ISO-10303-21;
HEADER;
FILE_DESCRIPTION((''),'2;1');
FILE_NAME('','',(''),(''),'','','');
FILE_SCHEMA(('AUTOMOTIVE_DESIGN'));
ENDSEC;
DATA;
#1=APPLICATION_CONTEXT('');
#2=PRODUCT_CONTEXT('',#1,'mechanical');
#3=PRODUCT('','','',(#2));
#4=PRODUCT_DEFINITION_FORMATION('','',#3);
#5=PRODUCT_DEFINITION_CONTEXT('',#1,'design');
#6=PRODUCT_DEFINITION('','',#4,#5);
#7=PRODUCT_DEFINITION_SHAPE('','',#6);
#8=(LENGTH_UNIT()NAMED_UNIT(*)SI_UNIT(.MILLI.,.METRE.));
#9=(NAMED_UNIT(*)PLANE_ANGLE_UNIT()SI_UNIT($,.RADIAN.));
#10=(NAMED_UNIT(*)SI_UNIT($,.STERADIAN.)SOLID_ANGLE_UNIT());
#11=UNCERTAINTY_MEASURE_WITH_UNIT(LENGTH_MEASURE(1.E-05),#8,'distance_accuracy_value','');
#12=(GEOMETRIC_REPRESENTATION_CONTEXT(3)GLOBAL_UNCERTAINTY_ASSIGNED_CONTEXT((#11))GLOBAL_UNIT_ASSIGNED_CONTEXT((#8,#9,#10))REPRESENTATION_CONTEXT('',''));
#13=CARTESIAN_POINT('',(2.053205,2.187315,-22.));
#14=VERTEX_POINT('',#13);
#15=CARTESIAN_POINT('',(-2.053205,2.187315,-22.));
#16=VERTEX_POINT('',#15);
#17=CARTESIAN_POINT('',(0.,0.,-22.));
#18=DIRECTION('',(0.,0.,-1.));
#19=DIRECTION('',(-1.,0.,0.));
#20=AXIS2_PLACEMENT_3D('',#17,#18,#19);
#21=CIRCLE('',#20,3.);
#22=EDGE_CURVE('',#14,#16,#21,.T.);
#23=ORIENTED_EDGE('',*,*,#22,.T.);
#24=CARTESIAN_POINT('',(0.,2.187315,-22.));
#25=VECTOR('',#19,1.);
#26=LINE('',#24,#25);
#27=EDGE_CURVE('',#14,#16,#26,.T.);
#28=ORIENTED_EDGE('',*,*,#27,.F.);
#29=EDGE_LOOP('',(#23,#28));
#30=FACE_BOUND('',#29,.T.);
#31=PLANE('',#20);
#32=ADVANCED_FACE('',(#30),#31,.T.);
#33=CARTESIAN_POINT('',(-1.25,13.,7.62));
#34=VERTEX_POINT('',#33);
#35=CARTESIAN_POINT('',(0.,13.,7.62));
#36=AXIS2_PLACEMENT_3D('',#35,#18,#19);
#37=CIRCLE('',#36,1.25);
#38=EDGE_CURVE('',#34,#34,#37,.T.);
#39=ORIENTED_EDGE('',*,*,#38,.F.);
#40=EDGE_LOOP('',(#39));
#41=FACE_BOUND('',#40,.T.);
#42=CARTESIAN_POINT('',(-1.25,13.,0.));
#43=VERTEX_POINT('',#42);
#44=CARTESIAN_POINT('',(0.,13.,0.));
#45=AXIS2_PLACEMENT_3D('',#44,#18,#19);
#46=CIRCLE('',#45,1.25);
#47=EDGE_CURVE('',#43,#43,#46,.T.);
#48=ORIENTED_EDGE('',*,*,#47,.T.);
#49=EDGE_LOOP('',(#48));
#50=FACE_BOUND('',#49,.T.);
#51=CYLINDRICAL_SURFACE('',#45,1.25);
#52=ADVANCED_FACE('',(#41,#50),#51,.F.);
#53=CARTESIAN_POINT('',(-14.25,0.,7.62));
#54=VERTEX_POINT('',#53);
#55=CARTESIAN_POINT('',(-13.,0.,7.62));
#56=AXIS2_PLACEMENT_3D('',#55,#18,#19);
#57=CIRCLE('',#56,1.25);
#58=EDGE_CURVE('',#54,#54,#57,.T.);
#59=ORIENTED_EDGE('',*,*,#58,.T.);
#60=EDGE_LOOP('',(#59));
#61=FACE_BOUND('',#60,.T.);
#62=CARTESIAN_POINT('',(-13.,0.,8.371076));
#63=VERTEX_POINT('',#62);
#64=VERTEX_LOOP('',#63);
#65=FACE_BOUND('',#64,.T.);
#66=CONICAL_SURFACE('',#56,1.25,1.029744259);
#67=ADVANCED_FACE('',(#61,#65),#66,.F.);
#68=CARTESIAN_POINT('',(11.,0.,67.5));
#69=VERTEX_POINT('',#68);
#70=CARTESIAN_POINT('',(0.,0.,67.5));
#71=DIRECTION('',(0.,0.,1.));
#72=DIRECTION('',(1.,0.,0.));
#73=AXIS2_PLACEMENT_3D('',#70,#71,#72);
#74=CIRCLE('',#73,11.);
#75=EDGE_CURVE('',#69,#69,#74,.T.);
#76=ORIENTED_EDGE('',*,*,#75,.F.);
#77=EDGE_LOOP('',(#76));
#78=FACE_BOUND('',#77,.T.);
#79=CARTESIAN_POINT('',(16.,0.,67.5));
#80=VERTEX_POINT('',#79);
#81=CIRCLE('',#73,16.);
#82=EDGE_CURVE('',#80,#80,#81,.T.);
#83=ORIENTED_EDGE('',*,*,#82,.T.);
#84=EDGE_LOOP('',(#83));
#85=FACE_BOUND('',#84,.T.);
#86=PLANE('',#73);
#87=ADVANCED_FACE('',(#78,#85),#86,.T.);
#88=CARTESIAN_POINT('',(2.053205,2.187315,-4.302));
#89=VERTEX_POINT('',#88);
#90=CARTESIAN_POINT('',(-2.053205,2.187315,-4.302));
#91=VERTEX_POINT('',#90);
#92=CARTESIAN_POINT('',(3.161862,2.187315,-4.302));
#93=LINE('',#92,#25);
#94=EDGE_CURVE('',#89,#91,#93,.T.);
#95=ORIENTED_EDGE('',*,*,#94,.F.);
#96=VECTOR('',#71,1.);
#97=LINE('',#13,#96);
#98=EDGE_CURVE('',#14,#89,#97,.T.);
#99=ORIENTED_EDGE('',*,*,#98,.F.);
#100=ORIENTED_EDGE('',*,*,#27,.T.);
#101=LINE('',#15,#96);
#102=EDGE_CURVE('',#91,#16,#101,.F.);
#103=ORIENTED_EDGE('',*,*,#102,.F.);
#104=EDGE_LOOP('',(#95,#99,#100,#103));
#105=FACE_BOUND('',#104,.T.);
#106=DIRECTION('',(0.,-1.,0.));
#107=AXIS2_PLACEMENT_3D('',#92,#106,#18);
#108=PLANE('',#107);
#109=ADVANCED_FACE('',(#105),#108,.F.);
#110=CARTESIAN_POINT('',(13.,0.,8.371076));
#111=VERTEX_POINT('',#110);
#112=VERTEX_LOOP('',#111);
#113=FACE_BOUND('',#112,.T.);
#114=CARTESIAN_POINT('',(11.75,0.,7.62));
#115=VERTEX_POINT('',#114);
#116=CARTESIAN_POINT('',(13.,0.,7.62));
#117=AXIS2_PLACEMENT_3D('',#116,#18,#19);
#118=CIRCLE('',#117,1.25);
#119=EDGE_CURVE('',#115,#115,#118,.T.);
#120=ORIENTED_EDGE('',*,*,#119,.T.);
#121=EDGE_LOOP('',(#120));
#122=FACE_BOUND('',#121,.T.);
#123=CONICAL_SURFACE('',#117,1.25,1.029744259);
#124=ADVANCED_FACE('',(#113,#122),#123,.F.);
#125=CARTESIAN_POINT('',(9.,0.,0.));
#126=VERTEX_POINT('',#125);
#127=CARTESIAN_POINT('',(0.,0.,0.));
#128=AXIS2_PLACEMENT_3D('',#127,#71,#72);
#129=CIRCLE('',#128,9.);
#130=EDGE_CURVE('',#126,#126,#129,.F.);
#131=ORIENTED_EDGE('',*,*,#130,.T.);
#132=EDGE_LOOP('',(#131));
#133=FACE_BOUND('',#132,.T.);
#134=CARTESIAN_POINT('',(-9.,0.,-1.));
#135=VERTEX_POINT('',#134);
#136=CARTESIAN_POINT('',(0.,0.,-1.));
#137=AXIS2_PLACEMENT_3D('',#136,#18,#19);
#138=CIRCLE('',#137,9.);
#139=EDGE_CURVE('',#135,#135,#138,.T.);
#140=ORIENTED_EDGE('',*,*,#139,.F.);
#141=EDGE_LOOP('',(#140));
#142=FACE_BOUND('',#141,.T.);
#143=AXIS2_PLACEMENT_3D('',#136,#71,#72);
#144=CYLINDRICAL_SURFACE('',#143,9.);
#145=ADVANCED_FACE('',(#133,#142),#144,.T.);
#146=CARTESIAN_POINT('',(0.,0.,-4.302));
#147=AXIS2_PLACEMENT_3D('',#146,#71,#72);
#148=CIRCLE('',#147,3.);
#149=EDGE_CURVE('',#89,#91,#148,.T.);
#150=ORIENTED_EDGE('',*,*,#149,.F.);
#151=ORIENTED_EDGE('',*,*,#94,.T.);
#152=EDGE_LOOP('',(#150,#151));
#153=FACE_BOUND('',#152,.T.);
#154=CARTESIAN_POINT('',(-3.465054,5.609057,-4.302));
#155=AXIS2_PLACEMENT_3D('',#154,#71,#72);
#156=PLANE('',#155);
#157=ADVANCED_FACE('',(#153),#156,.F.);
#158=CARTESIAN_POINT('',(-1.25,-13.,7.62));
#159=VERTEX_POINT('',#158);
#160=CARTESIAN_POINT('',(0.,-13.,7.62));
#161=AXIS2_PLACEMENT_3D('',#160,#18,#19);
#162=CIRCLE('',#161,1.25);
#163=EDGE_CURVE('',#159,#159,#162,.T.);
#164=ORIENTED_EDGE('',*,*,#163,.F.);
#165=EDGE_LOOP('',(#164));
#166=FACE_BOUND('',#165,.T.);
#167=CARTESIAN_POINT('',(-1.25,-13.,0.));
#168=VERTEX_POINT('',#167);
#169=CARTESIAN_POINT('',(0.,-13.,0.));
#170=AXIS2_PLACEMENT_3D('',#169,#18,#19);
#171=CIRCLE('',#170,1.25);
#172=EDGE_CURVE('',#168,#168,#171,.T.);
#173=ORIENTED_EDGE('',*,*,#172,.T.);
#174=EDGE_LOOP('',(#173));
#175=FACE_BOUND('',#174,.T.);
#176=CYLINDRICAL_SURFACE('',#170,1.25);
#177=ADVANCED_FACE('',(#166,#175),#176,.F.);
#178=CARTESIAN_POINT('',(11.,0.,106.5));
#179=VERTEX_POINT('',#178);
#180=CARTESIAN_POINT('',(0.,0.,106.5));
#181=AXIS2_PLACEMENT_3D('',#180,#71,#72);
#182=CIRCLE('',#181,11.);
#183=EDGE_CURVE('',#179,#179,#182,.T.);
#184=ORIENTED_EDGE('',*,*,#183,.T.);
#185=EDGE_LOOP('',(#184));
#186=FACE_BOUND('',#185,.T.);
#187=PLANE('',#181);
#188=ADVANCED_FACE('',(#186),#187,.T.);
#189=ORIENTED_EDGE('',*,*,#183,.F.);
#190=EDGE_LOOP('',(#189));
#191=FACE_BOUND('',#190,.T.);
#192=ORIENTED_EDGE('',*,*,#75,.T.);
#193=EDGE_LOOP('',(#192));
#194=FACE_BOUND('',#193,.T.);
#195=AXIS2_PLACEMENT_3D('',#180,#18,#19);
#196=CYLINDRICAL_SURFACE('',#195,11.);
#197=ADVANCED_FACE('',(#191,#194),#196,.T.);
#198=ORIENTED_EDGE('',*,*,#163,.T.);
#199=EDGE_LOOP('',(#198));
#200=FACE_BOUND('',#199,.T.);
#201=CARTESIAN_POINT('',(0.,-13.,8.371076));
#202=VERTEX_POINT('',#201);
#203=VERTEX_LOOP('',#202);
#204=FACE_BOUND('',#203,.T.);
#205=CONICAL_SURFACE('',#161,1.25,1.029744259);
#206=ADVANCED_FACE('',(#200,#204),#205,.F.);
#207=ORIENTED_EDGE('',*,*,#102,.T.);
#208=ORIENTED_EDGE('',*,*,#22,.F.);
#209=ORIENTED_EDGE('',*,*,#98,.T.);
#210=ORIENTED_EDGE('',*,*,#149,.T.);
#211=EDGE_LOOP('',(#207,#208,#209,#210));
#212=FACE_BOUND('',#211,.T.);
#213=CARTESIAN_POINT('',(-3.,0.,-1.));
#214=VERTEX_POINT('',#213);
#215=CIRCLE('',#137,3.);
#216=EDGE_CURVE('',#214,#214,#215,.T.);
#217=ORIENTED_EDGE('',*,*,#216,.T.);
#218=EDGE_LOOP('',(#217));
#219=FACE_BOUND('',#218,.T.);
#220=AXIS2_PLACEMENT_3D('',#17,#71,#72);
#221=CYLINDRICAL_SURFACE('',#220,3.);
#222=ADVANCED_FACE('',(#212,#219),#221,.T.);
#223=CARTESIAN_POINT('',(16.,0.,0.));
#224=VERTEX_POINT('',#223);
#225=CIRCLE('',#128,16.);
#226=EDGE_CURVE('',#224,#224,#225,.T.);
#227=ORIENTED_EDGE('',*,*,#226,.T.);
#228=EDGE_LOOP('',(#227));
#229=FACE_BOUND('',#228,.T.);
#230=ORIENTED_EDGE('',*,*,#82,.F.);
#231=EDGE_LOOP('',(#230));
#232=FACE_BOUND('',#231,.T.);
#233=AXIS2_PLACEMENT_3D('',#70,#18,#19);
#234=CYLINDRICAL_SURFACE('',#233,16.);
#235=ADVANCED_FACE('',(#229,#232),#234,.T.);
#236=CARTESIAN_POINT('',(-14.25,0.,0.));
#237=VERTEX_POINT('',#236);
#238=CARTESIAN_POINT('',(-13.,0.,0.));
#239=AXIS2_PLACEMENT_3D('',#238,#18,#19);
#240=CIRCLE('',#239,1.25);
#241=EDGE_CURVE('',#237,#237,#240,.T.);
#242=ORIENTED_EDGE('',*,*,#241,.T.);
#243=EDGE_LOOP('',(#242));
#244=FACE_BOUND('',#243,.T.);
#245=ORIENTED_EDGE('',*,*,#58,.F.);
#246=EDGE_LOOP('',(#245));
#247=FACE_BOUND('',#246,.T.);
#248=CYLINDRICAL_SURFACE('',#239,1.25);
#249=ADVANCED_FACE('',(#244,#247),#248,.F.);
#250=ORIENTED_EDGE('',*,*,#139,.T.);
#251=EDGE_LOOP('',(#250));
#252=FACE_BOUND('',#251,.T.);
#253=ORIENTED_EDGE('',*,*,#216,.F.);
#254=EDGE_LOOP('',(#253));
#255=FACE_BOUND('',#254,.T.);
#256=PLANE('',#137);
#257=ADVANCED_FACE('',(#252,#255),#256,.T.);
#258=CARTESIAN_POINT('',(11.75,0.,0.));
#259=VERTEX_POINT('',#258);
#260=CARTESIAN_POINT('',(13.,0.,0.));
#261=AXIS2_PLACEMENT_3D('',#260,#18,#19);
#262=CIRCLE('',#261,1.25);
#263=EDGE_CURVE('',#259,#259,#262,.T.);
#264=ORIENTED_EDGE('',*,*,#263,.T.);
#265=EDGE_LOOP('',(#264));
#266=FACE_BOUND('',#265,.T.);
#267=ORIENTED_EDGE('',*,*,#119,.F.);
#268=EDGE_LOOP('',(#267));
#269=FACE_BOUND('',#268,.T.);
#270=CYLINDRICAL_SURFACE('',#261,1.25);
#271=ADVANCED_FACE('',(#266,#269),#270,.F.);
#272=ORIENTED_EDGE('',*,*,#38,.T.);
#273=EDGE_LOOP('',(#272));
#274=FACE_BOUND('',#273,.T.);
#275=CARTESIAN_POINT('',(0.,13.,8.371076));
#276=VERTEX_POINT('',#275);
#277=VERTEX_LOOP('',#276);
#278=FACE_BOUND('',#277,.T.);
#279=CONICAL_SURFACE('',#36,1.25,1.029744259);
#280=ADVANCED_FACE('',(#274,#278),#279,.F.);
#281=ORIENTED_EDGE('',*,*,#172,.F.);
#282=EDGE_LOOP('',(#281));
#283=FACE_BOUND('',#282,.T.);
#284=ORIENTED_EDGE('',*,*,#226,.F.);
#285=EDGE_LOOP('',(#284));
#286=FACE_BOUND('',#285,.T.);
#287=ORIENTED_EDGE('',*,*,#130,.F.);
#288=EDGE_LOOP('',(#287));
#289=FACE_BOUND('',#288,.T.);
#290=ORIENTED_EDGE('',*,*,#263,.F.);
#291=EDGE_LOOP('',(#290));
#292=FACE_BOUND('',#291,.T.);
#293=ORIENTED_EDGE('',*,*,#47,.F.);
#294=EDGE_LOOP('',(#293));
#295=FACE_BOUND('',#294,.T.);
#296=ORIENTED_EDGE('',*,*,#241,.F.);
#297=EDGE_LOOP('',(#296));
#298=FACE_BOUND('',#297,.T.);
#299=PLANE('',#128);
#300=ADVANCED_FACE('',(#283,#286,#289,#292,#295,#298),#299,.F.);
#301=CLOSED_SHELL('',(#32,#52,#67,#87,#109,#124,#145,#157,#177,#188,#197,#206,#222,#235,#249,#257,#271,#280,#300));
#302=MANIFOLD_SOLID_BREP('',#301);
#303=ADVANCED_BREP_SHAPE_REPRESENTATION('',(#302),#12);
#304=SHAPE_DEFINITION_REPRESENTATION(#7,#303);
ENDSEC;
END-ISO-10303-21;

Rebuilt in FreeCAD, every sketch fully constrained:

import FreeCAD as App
import Part
import Sketcher
from FreeCAD import Vector
Q = App.Units.Quantity

doc = App.newDocument("Part")
params = doc.addObject("Spreadsheet::Sheet", "Params")
for row, (alias, value) in enumerate([
    ("sketch1_diameter", "32 mm"),
    ("pad1_length", "67.5 mm"),
    ("sketch2_diameter", "18 mm"),
    ("pad2_length", "1 mm"),
    ("sketch3_diameter", "6 mm"),
    ("pad3_length", "21 mm"),
    ("pocket1_length", "17.698 mm"),
    ("sketch5_diameter", "22 mm"),
    ("pad4_length", "39 mm"),
    ("sketch6_width", "1.25 mm"),
    ("sketch6_height", "7.62 mm"),
    ("groove_angle", "360 deg"),
], start=1):
    params.set(f"A{row}", alias)
    params.set(f"B{row}", "=" + value)
    params.setAlias(f"B{row}", alias)

body = doc.addObject("PartDesign::Body", "Body")

# Sketch on XY plane
sketch1 = body.newObject("Sketcher::SketchObject", "Sketch")
sketch1.AttachmentSupport = (doc.getObject("XY_Plane"), [""])
sketch1.MapMode = "FlatFace"
sketch1.addGeometry(Part.Circle(Vector(0, 0, 0), Vector(0, 0, 1), 16), False)
sketch1.addConstraint([
    Sketcher.Constraint("Coincident", 0, 3, -1, 1),
    Sketcher.Constraint("Diameter", 0, Q("32 mm")),
])
sketch1.setExpression("Constraints[1]", "Params.sketch1_diameter")
pad1 = body.newObject("PartDesign::Pad", "Pad")
pad1.Profile = sketch1
pad1.setExpression("Length", "Params.pad1_length")

# Sketch on XY plane
sketch2 = body.newObject("Sketcher::SketchObject", "Sketch001")
sketch2.AttachmentSupport = (doc.getObject("XY_Plane"), [""])
sketch2.MapMode = "FlatFace"
sketch2.addGeometry(Part.Circle(Vector(0, 0, 0), Vector(0, 0, 1), 9), False)
sketch2.addConstraint([
    Sketcher.Constraint("Coincident", 0, 3, -1, 1),
    Sketcher.Constraint("Diameter", 0, Q("18 mm")),
])
sketch2.setExpression("Constraints[1]", "Params.sketch2_diameter")
pad2 = body.newObject("PartDesign::Pad", "Pad001")
pad2.Profile = sketch2
pad2.setExpression("Length", "Params.pad2_length")
pad2.Reversed = True

# Sketch on XY plane
sketch3 = body.newObject("Sketcher::SketchObject", "Sketch002")
sketch3.AttachmentSupport = (doc.getObject("XY_Plane"), [""])
sketch3.MapMode = "FlatFace"
sketch3.AttachmentOffset = App.Placement(Vector(0, 0, -1), App.Rotation())
sketch3.addGeometry(Part.Circle(Vector(0, 0, 0), Vector(0, 0, 1), 3), False)
sketch3.addConstraint([
    Sketcher.Constraint("Coincident", 0, 3, -1, 1),
    Sketcher.Constraint("Diameter", 0, Q("6 mm")),
])
sketch3.setExpression("Constraints[1]", "Params.sketch3_diameter")
pad3 = body.newObject("PartDesign::Pad", "Pad002")
pad3.Profile = sketch3
pad3.setExpression("Length", "Params.pad3_length")
pad3.Reversed = True

# Sketch on XY plane
sketch4 = body.newObject("Sketcher::SketchObject", "Sketch003")
sketch4.AttachmentSupport = (doc.getObject("XY_Plane"), [""])
sketch4.MapMode = "FlatFace"
sketch4.AttachmentOffset = App.Placement(Vector(0, 0, -22), App.Rotation())
sketch4.addGeometry([
    Part.LineSegment(Vector(3.161862, 2.187315, 0), Vector(-3.465054, 2.187315, 0)),
    Part.LineSegment(Vector(-3.465054, 2.187315, 0), Vector(-3.465054, 5.609057, 0)),
    Part.LineSegment(Vector(-3.465054, 5.609057, 0), Vector(3.161862, 2.187315, 0)),
], False)
sketch4.addConstraint([
    Sketcher.Constraint("Coincident", 0, 2, 1, 1),
    Sketcher.Constraint("Coincident", 1, 2, 2, 1),
    Sketcher.Constraint("Coincident", 2, 2, 0, 1),
    Sketcher.Constraint("Horizontal", 0),
    Sketcher.Constraint("Vertical", 1),
    Sketcher.Constraint("DistanceY", 1, 1, 1, 2, Q("3.421741 mm")),
    Sketcher.Constraint("DistanceX", 0, 2, 0, 1, Q("6.626916 mm")),
    Sketcher.Constraint("DistanceX", -1, 1, 2, 2, Q("3.161862 mm")),
    Sketcher.Constraint("DistanceY", -1, 1, 0, 2, Q("2.187315 mm")),
])
pocket1 = body.newObject("PartDesign::Pocket", "Pocket")
pocket1.Profile = sketch4
pocket1.setExpression("Length", "Params.pocket1_length")
pocket1.Reversed = True

# Sketch on XY plane
sketch5 = body.newObject("Sketcher::SketchObject", "Sketch004")
sketch5.AttachmentSupport = (doc.getObject("XY_Plane"), [""])
sketch5.MapMode = "FlatFace"
sketch5.AttachmentOffset = App.Placement(Vector(0, 0, 67.5), App.Rotation())
sketch5.addGeometry(Part.Circle(Vector(0, 0, 0), Vector(0, 0, 1), 11), False)
sketch5.addConstraint([
    Sketcher.Constraint("Coincident", 0, 3, -1, 1),
    Sketcher.Constraint("Diameter", 0, Q("22 mm")),
])
sketch5.setExpression("Constraints[1]", "Params.sketch5_diameter")
pad4 = body.newObject("PartDesign::Pad", "Pad003")
pad4.Profile = sketch5
pad4.setExpression("Length", "Params.pad4_length")

# Sketch on YZ plane
sketch6 = body.newObject("Sketcher::SketchObject", "Sketch005")
sketch6.AttachmentSupport = (doc.getObject("YZ_Plane"), [""])
sketch6.MapMode = "FlatFace"
sketch6.addGeometry([
    Part.LineSegment(Vector(13, 8.371076, 0), Vector(13, 0, 0)),
    Part.LineSegment(Vector(13, 0, 0), Vector(14.25, 0, 0)),
    Part.LineSegment(Vector(14.25, 0, 0), Vector(14.25, 7.62, 0)),
    Part.LineSegment(Vector(14.25, 7.62, 0), Vector(13, 8.371076, 0)),
], False)
sketch6.addGeometry(Part.LineSegment(Vector(13, 0, 0), Vector(13, 8.371076, 0)), True)  # axis
sketch6.addConstraint([
    Sketcher.Constraint("Coincident", 0, 2, 1, 1),
    Sketcher.Constraint("Coincident", 1, 2, 2, 1),
    Sketcher.Constraint("Coincident", 2, 2, 3, 1),
    Sketcher.Constraint("Coincident", 3, 2, 0, 1),
    Sketcher.Constraint("Vertical", 0),
    Sketcher.Constraint("Horizontal", 1),
    Sketcher.Constraint("Vertical", 2),
    Sketcher.Constraint("Vertical", 4),
    Sketcher.Constraint("Coincident", 4, 1, 0, 2),
    Sketcher.Constraint("PointOnObject", 0, 2, -1),
    Sketcher.Constraint("Equal", 0, 4),
    Sketcher.Constraint("Angle", 3, Q("149 deg")),
    Sketcher.Constraint("DistanceX", -1, 1, 0, 2, Q("13 mm")),
    Sketcher.Constraint("DistanceX", 1, 1, 1, 2, Q("1.25 mm")),
    Sketcher.Constraint("DistanceY", 2, 1, 2, 2, Q("7.62 mm")),
])
sketch6.setExpression("Constraints[13]", "Params.sketch6_width")
sketch6.setExpression("Constraints[14]", "Params.sketch6_height")
groove = body.newObject("PartDesign::Groove", "Groove")
groove.Profile = sketch6
groove.ReferenceAxis = (sketch6, ["Axis0"])
groove.setExpression("Angle", "Params.groove_angle")
doc.recompute()

polarpattern = body.newObject("PartDesign::PolarPattern", "PolarPattern")
polarpattern.Originals = [groove]
polarpattern.Axis = (doc.getObject("Z_Axis"), [""])
polarpattern.Angle = 360
polarpattern.Occurrences = 4
body.Tip = polarpattern

doc.recompute()
